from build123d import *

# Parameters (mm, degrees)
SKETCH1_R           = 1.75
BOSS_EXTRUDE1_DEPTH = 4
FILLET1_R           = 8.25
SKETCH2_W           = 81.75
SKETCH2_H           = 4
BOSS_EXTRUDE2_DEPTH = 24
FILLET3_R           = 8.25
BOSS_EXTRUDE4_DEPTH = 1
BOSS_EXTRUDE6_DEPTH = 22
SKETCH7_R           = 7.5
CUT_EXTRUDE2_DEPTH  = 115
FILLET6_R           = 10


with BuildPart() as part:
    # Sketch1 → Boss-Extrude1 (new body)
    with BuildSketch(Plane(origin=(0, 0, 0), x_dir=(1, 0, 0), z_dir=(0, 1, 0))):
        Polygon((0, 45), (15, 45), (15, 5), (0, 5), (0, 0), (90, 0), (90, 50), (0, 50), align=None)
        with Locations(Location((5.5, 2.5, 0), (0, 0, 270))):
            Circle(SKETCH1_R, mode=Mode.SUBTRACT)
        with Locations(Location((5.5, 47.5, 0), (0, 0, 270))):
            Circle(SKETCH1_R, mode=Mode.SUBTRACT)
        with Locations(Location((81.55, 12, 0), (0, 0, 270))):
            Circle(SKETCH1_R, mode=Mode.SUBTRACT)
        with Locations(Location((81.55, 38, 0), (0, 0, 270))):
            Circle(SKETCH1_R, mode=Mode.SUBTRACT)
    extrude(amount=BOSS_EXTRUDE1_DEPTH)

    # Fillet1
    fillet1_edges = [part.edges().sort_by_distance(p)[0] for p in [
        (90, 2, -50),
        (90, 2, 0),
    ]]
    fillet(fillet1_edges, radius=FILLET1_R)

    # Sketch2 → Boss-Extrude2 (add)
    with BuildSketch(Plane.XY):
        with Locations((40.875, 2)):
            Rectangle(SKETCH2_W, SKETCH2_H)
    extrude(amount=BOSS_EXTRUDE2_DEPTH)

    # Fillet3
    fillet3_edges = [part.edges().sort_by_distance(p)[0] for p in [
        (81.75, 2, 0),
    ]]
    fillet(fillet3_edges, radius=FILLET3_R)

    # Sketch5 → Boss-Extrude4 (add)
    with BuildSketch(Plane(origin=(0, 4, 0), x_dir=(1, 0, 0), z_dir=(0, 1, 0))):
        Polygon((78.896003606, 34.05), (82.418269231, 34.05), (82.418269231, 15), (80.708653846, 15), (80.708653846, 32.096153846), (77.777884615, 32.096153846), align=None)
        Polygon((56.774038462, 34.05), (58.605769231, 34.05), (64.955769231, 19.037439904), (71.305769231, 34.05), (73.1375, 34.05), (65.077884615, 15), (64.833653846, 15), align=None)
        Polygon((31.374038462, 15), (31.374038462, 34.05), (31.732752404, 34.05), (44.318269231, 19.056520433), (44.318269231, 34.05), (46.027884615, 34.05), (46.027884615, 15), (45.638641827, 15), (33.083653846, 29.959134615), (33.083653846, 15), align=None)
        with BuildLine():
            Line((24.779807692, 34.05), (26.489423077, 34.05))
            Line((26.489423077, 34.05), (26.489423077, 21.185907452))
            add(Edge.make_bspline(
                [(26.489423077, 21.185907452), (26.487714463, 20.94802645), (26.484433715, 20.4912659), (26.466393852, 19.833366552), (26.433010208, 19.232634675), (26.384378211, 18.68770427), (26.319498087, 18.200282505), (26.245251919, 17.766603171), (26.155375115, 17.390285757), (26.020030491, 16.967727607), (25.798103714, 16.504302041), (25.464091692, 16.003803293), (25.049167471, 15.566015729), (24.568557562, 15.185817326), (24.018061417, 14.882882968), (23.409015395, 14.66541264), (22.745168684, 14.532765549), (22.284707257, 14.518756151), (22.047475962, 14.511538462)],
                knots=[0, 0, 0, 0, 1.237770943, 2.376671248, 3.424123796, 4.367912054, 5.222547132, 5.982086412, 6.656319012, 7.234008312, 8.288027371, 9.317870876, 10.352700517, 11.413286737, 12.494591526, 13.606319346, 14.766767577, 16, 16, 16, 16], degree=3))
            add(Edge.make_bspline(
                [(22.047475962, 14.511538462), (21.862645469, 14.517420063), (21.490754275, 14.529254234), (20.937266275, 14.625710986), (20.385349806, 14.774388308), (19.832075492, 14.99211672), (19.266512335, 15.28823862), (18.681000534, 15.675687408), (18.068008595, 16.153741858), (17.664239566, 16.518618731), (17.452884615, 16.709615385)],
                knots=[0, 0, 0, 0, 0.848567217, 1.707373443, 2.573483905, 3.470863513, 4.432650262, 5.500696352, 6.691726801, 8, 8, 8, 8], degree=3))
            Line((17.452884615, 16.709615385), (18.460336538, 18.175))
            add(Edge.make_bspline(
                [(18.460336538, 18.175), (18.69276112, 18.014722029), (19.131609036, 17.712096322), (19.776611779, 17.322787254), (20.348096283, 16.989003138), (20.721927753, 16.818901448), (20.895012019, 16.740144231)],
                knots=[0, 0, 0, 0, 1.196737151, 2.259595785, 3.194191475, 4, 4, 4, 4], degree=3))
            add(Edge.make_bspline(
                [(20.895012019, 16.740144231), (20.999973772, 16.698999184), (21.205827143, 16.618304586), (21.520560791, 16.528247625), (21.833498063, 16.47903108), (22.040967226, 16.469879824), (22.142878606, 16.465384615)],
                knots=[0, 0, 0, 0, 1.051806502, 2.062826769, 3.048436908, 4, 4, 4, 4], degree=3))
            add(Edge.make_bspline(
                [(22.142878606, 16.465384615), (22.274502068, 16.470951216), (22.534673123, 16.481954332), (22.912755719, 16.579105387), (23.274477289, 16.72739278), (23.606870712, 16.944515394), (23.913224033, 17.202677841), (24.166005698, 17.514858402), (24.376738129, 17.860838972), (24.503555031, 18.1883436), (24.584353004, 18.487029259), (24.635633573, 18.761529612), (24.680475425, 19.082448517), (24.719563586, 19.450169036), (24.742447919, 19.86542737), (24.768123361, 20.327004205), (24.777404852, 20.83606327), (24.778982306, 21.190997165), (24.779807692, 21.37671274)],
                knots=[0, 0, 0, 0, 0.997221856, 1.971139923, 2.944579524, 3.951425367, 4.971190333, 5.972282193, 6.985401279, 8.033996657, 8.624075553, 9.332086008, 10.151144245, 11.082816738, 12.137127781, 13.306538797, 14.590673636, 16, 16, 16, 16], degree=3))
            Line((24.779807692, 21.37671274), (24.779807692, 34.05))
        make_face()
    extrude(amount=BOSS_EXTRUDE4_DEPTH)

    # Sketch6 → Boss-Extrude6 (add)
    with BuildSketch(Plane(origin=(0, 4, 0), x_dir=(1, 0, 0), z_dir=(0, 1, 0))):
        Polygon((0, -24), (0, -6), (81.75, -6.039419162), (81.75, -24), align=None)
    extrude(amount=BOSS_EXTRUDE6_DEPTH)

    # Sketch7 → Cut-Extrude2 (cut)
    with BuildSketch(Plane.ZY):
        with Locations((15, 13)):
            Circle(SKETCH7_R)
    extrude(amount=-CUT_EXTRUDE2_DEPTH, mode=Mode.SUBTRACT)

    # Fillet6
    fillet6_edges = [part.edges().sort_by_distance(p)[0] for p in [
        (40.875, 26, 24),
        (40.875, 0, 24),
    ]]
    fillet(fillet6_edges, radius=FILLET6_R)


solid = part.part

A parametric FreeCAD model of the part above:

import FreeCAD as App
import Part
import Sketcher
from FreeCAD import Vector
Q = App.Units.Quantity


def edges_at(feature, points):
    """Names of the edges that pass closest to the given points."""
    edges = feature.Shape.Edges
    near = lambda p: min(range(len(edges)), key=lambda i: edges[i].distToShape(Part.Vertex(*p))[0])
    return sorted({f"Edge{near(p) + 1}" for p in points})

doc = App.newDocument("Part")
body = doc.addObject("PartDesign::Body", "Body")

# Sketch on XZ plane
sketch1 = body.newObject("Sketcher::SketchObject", "Sketch")
sketch1.AttachmentSupport = (doc.getObject("XZ_Plane"), [""])
sketch1.MapMode = "FlatFace"
sketch1.addGeometry([
    Part.LineSegment(Vector(0, -45, 0), Vector(15, -45, 0)),  # 0
    Part.LineSegment(Vector(15, -45, 0), Vector(15, -5, 0)),  # 1
    Part.LineSegment(Vector(15, -5, 0), Vector(0, -5, 0)),  # 2
    Part.LineSegment(Vector(0, -5, 0), Vector(0, 0, 0)),  # 3
    Part.LineSegment(Vector(0, 0, 0), Vector(90, 0, 0)),  # 4
    Part.LineSegment(Vector(90, 0, 0), Vector(90, -50, 0)),  # 5
    Part.LineSegment(Vector(90, -50, 0), Vector(0, -50, 0)),  # 6
    Part.LineSegment(Vector(0, -50, 0), Vector(0, -45, 0)),  # 7
    Part.Circle(Vector(5.5, -2.5, 0), Vector(0, 0, 1), 1.8),  # 8
    Part.Circle(Vector(81.5, -12, 0), Vector(0, 0, 1), 1.8),  # 9
    Part.Circle(Vector(5.5, -47.5, 0), Vector(0, 0, 1), 1.8),  # 10
    Part.Circle(Vector(81.5, -38, 0), Vector(0, 0, 1), 1.8),  # 11
], False)
sketch1.addConstraint([
    Sketcher.Constraint("Coincident", 0, 2, 1, 1),
    Sketcher.Constraint("Coincident", 1, 2, 2, 1),
    Sketcher.Constraint("Coincident", 2, 2, 3, 1),
    Sketcher.Constraint("Coincident", 3, 2, 4, 1),
    Sketcher.Constraint("Coincident", 4, 2, 5, 1),
    Sketcher.Constraint("Coincident", 5, 2, 6, 1),
    Sketcher.Constraint("Coincident", 6, 2, 7, 1),
    Sketcher.Constraint("Coincident", 7, 2, 0, 1),
    Sketcher.Constraint("Horizontal", 0),
    Sketcher.Constraint("Vertical", 1),
    Sketcher.Constraint("Horizontal", 2),
    Sketcher.Constraint("Vertical", 3),
    Sketcher.Constraint("Horizontal", 4),
    Sketcher.Constraint("Vertical", 5),
    Sketcher.Constraint("Horizontal", 6),
    Sketcher.Constraint("Vertical", 7),
    Sketcher.Constraint("Coincident", 3, 2, -1, 1),
    Sketcher.Constraint("Equal", 8, 9),
    Sketcher.Constraint("Equal", 9, 10),
    Sketcher.Constraint("Equal", 10, 11),
    Sketcher.Constraint("PointOnObject", 6, 2, -2),
    Sketcher.Constraint("Vertical", 8, 3, 10, 3),
    Sketcher.Constraint("Vertical", 9, 3, 11, 3),
    Sketcher.Constraint("Equal", 3, 7),
    Sketcher.Constraint("Diameter", 8, Q("3.5 mm")),
    Sketcher.Constraint("DistanceX", 0, 1, 0, 2, Q("15 mm")),
    Sketcher.Constraint("DistanceX", 4, 1, 4, 2, Q("90 mm")),
    Sketcher.Constraint("DistanceY", 1, 1, 1, 2, Q("40 mm")),
    Sketcher.Constraint("DistanceY", 3, 1, 3, 2, Q("5 mm")),
    Sketcher.Constraint("DistanceY", 9, 3, -1, 1, Q("12 mm")),
    Sketcher.Constraint("DistanceY", 11, 3, -1, 1, Q("38 mm")),
    Sketcher.Constraint("DistanceY", 10, 3, 8, 3, Q("45 mm")),
    Sketcher.Constraint("DistanceX", -1, 1, 8, 3, Q("5.5 mm")),
    Sketcher.Constraint("DistanceY", 8, 3, -1, 1, Q("2.5 mm")),
    Sketcher.Constraint("DistanceX", -1, 1, 9, 3, Q("81.55 mm")),
])
pad1 = body.newObject("PartDesign::Pad", "Pad")
pad1.Profile = sketch1
pad1.Length = 4
pad1.Reversed = True
doc.recompute()

fillet = body.newObject("PartDesign::Fillet", "Fillet")
fillet.Base = (pad1, edges_at(pad1, [(90, 2, -50), (90, 2, 0)]))
fillet.Radius = 8.25

# Sketch on XY plane
sketch2 = body.newObject("Sketcher::SketchObject", "Sketch001")
sketch2.AttachmentSupport = (doc.getObject("XY_Plane"), [""])
sketch2.MapMode = "FlatFace"
sketch2.addGeometry([
    Part.LineSegment(Vector(0, 4, 0), Vector(0, 0, 0)),
    Part.LineSegment(Vector(0, 0, 0), Vector(81.8, 0, 0)),
    Part.LineSegment(Vector(81.8, 0, 0), Vector(81.8, 4, 0)),
    Part.LineSegment(Vector(81.8, 4, 0), Vector(0, 4, 0)),
], False)
sketch2.addConstraint([
    Sketcher.Constraint("Coincident", 0, 2, 1, 1),
    Sketcher.Constraint("Coincident", 1, 2, 2, 1),
    Sketcher.Constraint("Coincident", 2, 2, 3, 1),
    Sketcher.Constraint("Coincident", 3, 2, 0, 1),
    Sketcher.Constraint("Vertical", 0),
    Sketcher.Constraint("Horizontal", 1),
    Sketcher.Constraint("Vertical", 2),
    Sketcher.Constraint("Horizontal", 3),
    Sketcher.Constraint("Coincident", 0, 2, -1, 1),
    Sketcher.Constraint("DistanceY", 0, 2, 0, 1, Q("4 mm")),
    Sketcher.Constraint("DistanceX", 1, 1, 1, 2, Q("81.75 mm")),
])
pad2 = body.newObject("PartDesign::Pad", "Pad001")
pad2.Profile = sketch2
pad2.Length = 24
doc.recompute()

fillet2 = body.newObject("PartDesign::Fillet", "Fillet001")
fillet2.Base = (pad2, edges_at(pad2, [(81.75, 2, 0)]))
fillet2.Radius = 8.25

# Sketch on XZ plane
sketch3 = body.newObject("Sketcher::SketchObject", "Sketch002")
sketch3.AttachmentSupport = (doc.getObject("XZ_Plane"), [""])
sketch3.MapMode = "FlatFace"
sketch3.AttachmentOffset = App.Placement(Vector(0, 0, -4), App.Rotation())
sketch3.addGeometry([
    Part.LineSegment(Vector(82.418269, -34.05, 0), Vector(78.896004, -34.05, 0)),  # 0
    Part.LineSegment(Vector(78.896004, -34.05, 0), Vector(77.777885, -32.096154, 0)),  # 1
    Part.LineSegment(Vector(77.777885, -32.096154, 0), Vector(80.708654, -32.096154, 0)),  # 2
    Part.LineSegment(Vector(80.708654, -32.096154, 0), Vector(80.708654, -15, 0)),  # 3
    Part.LineSegment(Vector(80.708654, -15, 0), Vector(82.418269, -15, 0)),  # 4
    Part.LineSegment(Vector(82.418269, -15, 0), Vector(82.418269, -34.05, 0)),  # 5
    Part.LineSegment(Vector(58.605769, -34.05, 0), Vector(56.774038, -34.05, 0)),  # 6
    Part.LineSegment(Vector(56.774038, -34.05, 0), Vector(64.833654, -15, 0)),  # 7
    Part.LineSegment(Vector(64.833654, -15, 0), Vector(65.077885, -15, 0)),  # 8
    Part.LineSegment(Vector(65.077885, -15, 0), Vector(73.1375, -34.05, 0)),  # 9
    Part.LineSegment(Vector(73.1375, -34.05, 0), Vector(71.305769, -34.05, 0)),  # 10
    Part.LineSegment(Vector(71.305769, -34.05, 0), Vector(64.955769, -19.03744, 0)),  # 11
    Part.LineSegment(Vector(64.955769, -19.03744, 0), Vector(58.605769, -34.05, 0)),  # 12
    Part.LineSegment(Vector(31.374038, -34.05, 0), Vector(31.374038, -15, 0)),  # 13
    Part.LineSegment(Vector(31.374038, -15, 0), Vector(33.083654, -15, 0)),  # 14
    Part.LineSegment(Vector(33.083654, -15, 0), Vector(33.083654, -29.959135, 0)),  # 15
    Part.LineSegment(Vector(33.083654, -29.959135, 0), Vector(45.638642, -15, 0)),  # 16
    Part.LineSegment(Vector(45.638642, -15, 0), Vector(46.027885, -15, 0)),  # 17
    Part.LineSegment(Vector(46.027885, -15, 0), Vector(46.027885, -34.05, 0)),  # 18
    Part.LineSegment(Vector(46.027885, -34.05, 0), Vector(44.318269, -34.05, 0)),  # 19
    Part.LineSegment(Vector(44.318269, -34.05, 0), Vector(44.318269, -19.05652, 0)),  # 20
    Part.LineSegment(Vector(44.318269, -19.05652, 0), Vector(31.732752, -34.05, 0)),  # 21
    Part.LineSegment(Vector(31.732752, -34.05, 0), Vector(31.374038, -34.05, 0)),  # 22
    Part.LineSegment(Vector(26.489423, -34.05, 0), Vector(24.779808, -34.05, 0)),  # 23
    Part.LineSegment(Vector(24.779808, -34.05, 0), Vector(24.779808, -21.376713, 0)),  # 24
    Part.BSplineCurve([Vector(22.142879, -16.465385, 0), Vector(22.274502, -16.470951, 0), Vector(22.534673, -16.481954, 0), Vector(22.912756, -16.579105, 0), Vector(23.274477, -16.727393, 0), Vector(23.606871, -16.944515, 0), Vector(23.913224, -17.202678, 0), Vector(24.166006, -17.514858, 0), Vector(24.376738, -17.860839, 0), Vector(24.503555, -18.188344, 0), Vector(24.584353, -18.487029, 0), Vector(24.635634, -18.76153, 0), Vector(24.680475, -19.082449, 0), Vector(24.719564, -19.450169, 0), Vector(24.742448, -19.865427, 0), Vector(24.768123, -20.327004, 0), Vector(24.777405, -20.836063, 0), Vector(24.778982, -21.190997, 0), Vector(24.779808, -21.376713, 0)], [4, 1, 1, 1, 1, 1, 1, 1, 1, 1, 1, 1, 1, 1, 1, 1, 4], [0, 0.997221856, 1.971139923, 2.944579524, 3.951425367, 4.971190333, 5.972282193, 6.985401279, 8.033996657, 8.624075553, 9.332086008, 10.151144245, 11.082816738, 12.137127781, 13.306538797, 14.590673636, 16], False, 3, [1, 1, 1, 1, 1, 1, 1, 1, 1, 1, 1, 1, 1, 1, 1, 1, 1, 1, 1], False),  # 25
    Part.BSplineCurve([Vector(20.895012, -16.740144, 0), Vector(20.999974, -16.698999, 0), Vector(21.205827, -16.618305, 0), Vector(21.520561, -16.528248, 0), Vector(21.833498, -16.479031, 0), Vector(22.040967, -16.46988, 0), Vector(22.142879, -16.465385, 0)], [4, 1, 1, 1, 4], [0, 1.051806502, 2.062826769, 3.048436908, 4], False, 3, [1, 1, 1, 1, 1, 1, 1], False),  # 26
    Part.BSplineCurve([Vector(18.460337, -18.175, 0), Vector(18.692761, -18.014722, 0), Vector(19.131609, -17.712096, 0), Vector(19.776612, -17.322787, 0), Vector(20.348096, -16.989003, 0), Vector(20.721928, -16.818901, 0), Vector(20.895012, -16.740144, 0)], [4, 1, 1, 1, 4], [0, 1.196737151, 2.259595785, 3.194191475, 4], False, 3, [1, 1, 1, 1, 1, 1, 1], False),  # 27
    Part.LineSegment(Vector(18.460337, -18.175, 0), Vector(17.452885, -16.709615, 0)),  # 28
    Part.BSplineCurve([Vector(22.047476, -14.511538, 0), Vector(21.862645, -14.51742, 0), Vector(21.490754, -14.529254, 0), Vector(20.937266, -14.625711, 0), Vector(20.38535, -14.774388, 0), Vector(19.832075, -14.992117, 0), Vector(19.266512, -15.288239, 0), Vector(18.681001, -15.675687, 0), Vector(18.068009, -16.153742, 0), Vector(17.66424, -16.518619, 0), Vector(17.452885, -16.709615, 0)], [4, 1, 1, 1, 1, 1, 1, 1, 4], [0, 0.848567217, 1.707373443, 2.573483905, 3.470863513, 4.432650262, 5.500696352, 6.691726801, 8], False, 3, [1, 1, 1, 1, 1, 1, 1, 1, 1, 1, 1], False),  # 29
    Part.BSplineCurve([Vector(26.489423, -21.185907, 0), Vector(26.487714, -20.948026, 0), Vector(26.484434, -20.491266, 0), Vector(26.466394, -19.833367, 0), Vector(26.43301, -19.232635, 0), Vector(26.384378, -18.687704, 0), Vector(26.319498, -18.200283, 0), Vector(26.245252, -17.766603, 0), Vector(26.155375, -17.390286, 0), Vector(26.02003, -16.967728, 0), Vector(25.798104, -16.504302, 0), Vector(25.464092, -16.003803, 0), Vector(25.049167, -15.566016, 0), Vector(24.568558, -15.185817, 0), Vector(24.018061, -14.882883, 0), Vector(23.409015, -14.665413, 0), Vector(22.745169, -14.532766, 0), Vector(22.284707, -14.518756, 0), Vector(22.047476, -14.511538, 0)], [4, 1, 1, 1, 1, 1, 1, 1, 1, 1, 1, 1, 1, 1, 1, 1, 4], [0, 1.237770943, 2.376671248, 3.424123796, 4.367912054, 5.222547132, 5.982086412, 6.656319012, 7.234008312, 8.288027371, 9.317870876, 10.352700517, 11.413286737, 12.494591526, 13.606319346, 14.766767577, 16], False, 3, [1, 1, 1, 1, 1, 1, 1, 1, 1, 1, 1, 1, 1, 1, 1, 1, 1, 1, 1], False),  # 30
    Part.LineSegment(Vector(26.489423, -21.185907, 0), Vector(26.489423, -34.05, 0)),  # 31
], False)
sketch3.addConstraint([
    Sketcher.Constraint("Block", 25),
    Sketcher.Constraint("Block", 26),
    Sketcher.Constraint("Block", 27),
    Sketcher.Constraint("Block", 29),
    Sketcher.Constraint("Block", 30),
    Sketcher.Constraint("Coincident", 0, 2, 1, 1),
    Sketcher.Constraint("Coincident", 1, 2, 2, 1),
    Sketcher.Constraint("Coincident", 2, 2, 3, 1),
    Sketcher.Constraint("Coincident", 3, 2, 4, 1),
    Sketcher.Constraint("Coincident", 4, 2, 5, 1),
    Sketcher.Constraint("Coincident", 5, 2, 0, 1),
    Sketcher.Constraint("Coincident", 6, 2, 7, 1),
    Sketcher.Constraint("Coincident", 7, 2, 8, 1),
    Sketcher.Constraint("Coincident", 8, 2, 9, 1),
    Sketcher.Constraint("Coincident", 9, 2, 10, 1),
    Sketcher.Constraint("Coincident", 10, 2, 11, 1),
    Sketcher.Constraint("Coincident", 11, 2, 12, 1),
    Sketcher.Constraint("Coincident", 12, 2, 6, 1),
    Sketcher.Constraint("Coincident", 13, 2, 14, 1),
    Sketcher.Constraint("Coincident", 14, 2, 15, 1),
    Sketcher.Constraint("Coincident", 15, 2, 16, 1),
    Sketcher.Constraint("Coincident", 16, 2, 17, 1),
    Sketcher.Constraint("Coincident", 17, 2, 18, 1),
    Sketcher.Constraint("Coincident", 18, 2, 19, 1),
    Sketcher.Constraint("Coincident", 19, 2, 20, 1),
    Sketcher.Constraint("Coincident", 20, 2, 21, 1),
    Sketcher.Constraint("Coincident", 21, 2, 22, 1),
    Sketcher.Constraint("Coincident", 22, 2, 13, 1),
    Sketcher.Constraint("Coincident", 23, 2, 24, 1),
    Sketcher.Constraint("Coincident", 24, 2, 25, 2),
    Sketcher.Constraint("Coincident", 27, 1, 28, 1),
    Sketcher.Constraint("Coincident", 28, 2, 29, 2),
    Sketcher.Constraint("Coincident", 30, 1, 31, 1),
    Sketcher.Constraint("Coincident", 31, 2, 23, 1),
    Sketcher.Constraint("Horizontal", 0),
    Sketcher.Constraint("Horizontal", 2),
    Sketcher.Constraint("Vertical", 3),
    Sketcher.Constraint("Horizontal", 4),
    Sketcher.Constraint("Vertical", 5),
    Sketcher.Constraint("Horizontal", 6),
    Sketcher.Constraint("Horizontal", 8),
    Sketcher.Constraint("Horizontal", 10),
    Sketcher.Constraint("Vertical", 13),
    Sketcher.Constraint("Horizontal", 14),
    Sketcher.Constraint("Vertical", 15),
    Sketcher.Constraint("Horizontal", 17),
    Sketcher.Constraint("Vertical", 18),
    Sketcher.Constraint("Horizontal", 19),
    Sketcher.Constraint("Vertical", 20),
    Sketcher.Constraint("Horizontal", 22),
    Sketcher.Constraint("Horizontal", 23),
    Sketcher.Constraint("Vertical", 24),
    Sketcher.Constraint("Vertical", 31),
    Sketcher.Constraint("DistanceY", 3, 2, -1, 1, Q("15 mm")),
    Sketcher.Constraint("DistanceY", 7, 2, -1, 1, Q("15 mm")),
    Sketcher.Constraint("DistanceY", 13, 2, -1, 1, Q("15 mm")),
    Sketcher.Constraint("DistanceY", 16, 2, -1, 1, Q("15 mm")),
    Sketcher.Constraint("DistanceY", 5, 2, 5, 1, Q("19.05 mm")),
    Sketcher.Constraint("DistanceY", 13, 1, 13, 2, Q("19.05 mm")),
    Sketcher.Constraint("DistanceY", 18, 2, 18, 1, Q("19.05 mm")),
    Sketcher.Constraint("DistanceX", 8, 2, 1, 2, Q("12.7 mm")),
    Sketcher.Constraint("DistanceX", 12, 2, 10, 2, Q("12.7 mm")),
    Sketcher.Constraint("DistanceX", 13, 2, 6, 2, Q("25.4 mm")),
    Sketcher.Constraint("DistanceY", 6, 2, -1, 1, Q("34.05 mm")),
    Sketcher.Constraint("DistanceY", 9, 2, -1, 1, Q("34.05 mm")),
    Sketcher.Constraint("DistanceY", 23, 2, -1, 1, Q("34.05 mm")),
    Sketcher.Constraint("DistanceX", 11, 2, 10, 2, Q("6.35 mm")),
    Sketcher.Constraint("DistanceX", 14, 2, 7, 2, Q("31.75 mm")),
    Sketcher.Constraint("DistanceX", 17, 2, 8, 2, Q("19.05 mm")),
    Sketcher.Constraint("DistanceX", 7, 2, 3, 2, Q("15.875 mm")),
    Sketcher.Constraint("DistanceX", 2, 1, 2, 2, Q("2.930769 mm")),
    Sketcher.Constraint("DistanceX", 6, 2, 6, 1, Q("1.831731 mm")),
    Sketcher.Constraint("DistanceX", 10, 2, 10, 1, Q("1.831731 mm")),
    Sketcher.Constraint("DistanceY", 20, 1, 20, 2, Q("14.99348 mm")),
    Sketcher.Constraint("DistanceX", -1, 1, 9, 2, Q("73.1375 mm")),
    Sketcher.Constraint("DistanceX", 10, 2, 5, 2, Q("11.1125 mm")),
    Sketcher.Constraint("DistanceX", 19, 2, 12, 2, Q("14.2875 mm")),
    Sketcher.Constraint("DistanceX", 21, 2, 15, 2, Q("1.350901 mm")),
    Sketcher.Constraint("Distance", 11, Q("16.30029 mm")),
    Sketcher.Constraint("DistanceX", 0, 2, 0, 1, Q("3.522266 mm")),
    Sketcher.Constraint("DistanceX", 4, 1, 4, 2, Q("1.709615 mm")),
    Sketcher.Constraint("DistanceX", 17, 1, 17, 2, Q("0.389243 mm")),
    Sketcher.Constraint("DistanceY", 3, 1, 3, 2, Q("17.096154 mm")),
    Sketcher.Constraint("DistanceY", 15, 2, 15, 1, Q("14.959135 mm")),
])
pad3 = body.newObject("PartDesign::Pad", "Pad002")
pad3.Profile = sketch3
pad3.Length = 1
pad3.Reversed = True

# Sketch on XZ plane
sketch4 = body.newObject("Sketcher::SketchObject", "Sketch003")
sketch4.AttachmentSupport = (doc.getObject("XZ_Plane"), [""])
sketch4.MapMode = "FlatFace"
sketch4.AttachmentOffset = App.Placement(Vector(0, 0, -4), App.Rotation())
sketch4.addGeometry([
    Part.LineSegment(Vector(0, 6, 0), Vector(0, 24, 0)),
    Part.LineSegment(Vector(0, 24, 0), Vector(82, 24, 0)),
    Part.LineSegment(Vector(82, 24, 0), Vector(82, 6, 0)),
    Part.LineSegment(Vector(82, 6, 0), Vector(0, 6, 0)),
], False)
sketch4.addConstraint([
    Sketcher.Constraint("Coincident", 0, 2, 1, 1),
    Sketcher.Constraint("Coincident", 1, 2, 2, 1),
    Sketcher.Constraint("Coincident", 2, 2, 3, 1),
    Sketcher.Constraint("Coincident", 3, 2, 0, 1),
    Sketcher.Constraint("Vertical", 0),
    Sketcher.Constraint("Horizontal", 1),
    Sketcher.Constraint("Vertical", 2),
    Sketcher.Constraint("PointOnObject", 0, 2, -2),
    Sketcher.Constraint("DistanceY", 0, 1, 0, 2, Q("18 mm")),
    Sketcher.Constraint("DistanceY", -1, 1, 0, 2, Q("24 mm")),
    Sketcher.Constraint("DistanceX", 1, 1, 1, 2, Q("81.75 mm")),
    Sketcher.Constraint("DistanceY", 2, 2, 2, 1, Q("17.960581 mm")),
])
pad4 = body.newObject("PartDesign::Pad", "Pad003")
pad4.Profile = sketch4
pad4.Length = 22
pad4.Reversed = True

# Sketch on YZ plane
sketch5 = body.newObject("Sketcher::SketchObject", "Sketch004")
sketch5.AttachmentSupport = (doc.getObject("YZ_Plane"), [""])
sketch5.MapMode = "FlatFace"
sketch5.addGeometry(Part.Circle(Vector(13, 15, 0), Vector(0, 0, 1), 8), False)
sketch5.addConstraint([
    Sketcher.Constraint("Diameter", 0, Q("15 mm")),
    Sketcher.Constraint("DistanceX", -1, 1, 0, 3, Q("13 mm")),
    Sketcher.Constraint("DistanceY", -1, 1, 0, 3, Q("15 mm")),
])
pocket1 = body.newObject("PartDesign::Pocket", "Pocket")
pocket1.Profile = sketch5
pocket1.Length = 115
pocket1.Reversed = True
doc.recompute()

fillet3 = body.newObject("PartDesign::Fillet", "Fillet002")
fillet3.Base = (pocket1, edges_at(pocket1, [(40.875, 26, 24), (40.875, 0, 24)]))
fillet3.Radius = 10

doc.recompute()
